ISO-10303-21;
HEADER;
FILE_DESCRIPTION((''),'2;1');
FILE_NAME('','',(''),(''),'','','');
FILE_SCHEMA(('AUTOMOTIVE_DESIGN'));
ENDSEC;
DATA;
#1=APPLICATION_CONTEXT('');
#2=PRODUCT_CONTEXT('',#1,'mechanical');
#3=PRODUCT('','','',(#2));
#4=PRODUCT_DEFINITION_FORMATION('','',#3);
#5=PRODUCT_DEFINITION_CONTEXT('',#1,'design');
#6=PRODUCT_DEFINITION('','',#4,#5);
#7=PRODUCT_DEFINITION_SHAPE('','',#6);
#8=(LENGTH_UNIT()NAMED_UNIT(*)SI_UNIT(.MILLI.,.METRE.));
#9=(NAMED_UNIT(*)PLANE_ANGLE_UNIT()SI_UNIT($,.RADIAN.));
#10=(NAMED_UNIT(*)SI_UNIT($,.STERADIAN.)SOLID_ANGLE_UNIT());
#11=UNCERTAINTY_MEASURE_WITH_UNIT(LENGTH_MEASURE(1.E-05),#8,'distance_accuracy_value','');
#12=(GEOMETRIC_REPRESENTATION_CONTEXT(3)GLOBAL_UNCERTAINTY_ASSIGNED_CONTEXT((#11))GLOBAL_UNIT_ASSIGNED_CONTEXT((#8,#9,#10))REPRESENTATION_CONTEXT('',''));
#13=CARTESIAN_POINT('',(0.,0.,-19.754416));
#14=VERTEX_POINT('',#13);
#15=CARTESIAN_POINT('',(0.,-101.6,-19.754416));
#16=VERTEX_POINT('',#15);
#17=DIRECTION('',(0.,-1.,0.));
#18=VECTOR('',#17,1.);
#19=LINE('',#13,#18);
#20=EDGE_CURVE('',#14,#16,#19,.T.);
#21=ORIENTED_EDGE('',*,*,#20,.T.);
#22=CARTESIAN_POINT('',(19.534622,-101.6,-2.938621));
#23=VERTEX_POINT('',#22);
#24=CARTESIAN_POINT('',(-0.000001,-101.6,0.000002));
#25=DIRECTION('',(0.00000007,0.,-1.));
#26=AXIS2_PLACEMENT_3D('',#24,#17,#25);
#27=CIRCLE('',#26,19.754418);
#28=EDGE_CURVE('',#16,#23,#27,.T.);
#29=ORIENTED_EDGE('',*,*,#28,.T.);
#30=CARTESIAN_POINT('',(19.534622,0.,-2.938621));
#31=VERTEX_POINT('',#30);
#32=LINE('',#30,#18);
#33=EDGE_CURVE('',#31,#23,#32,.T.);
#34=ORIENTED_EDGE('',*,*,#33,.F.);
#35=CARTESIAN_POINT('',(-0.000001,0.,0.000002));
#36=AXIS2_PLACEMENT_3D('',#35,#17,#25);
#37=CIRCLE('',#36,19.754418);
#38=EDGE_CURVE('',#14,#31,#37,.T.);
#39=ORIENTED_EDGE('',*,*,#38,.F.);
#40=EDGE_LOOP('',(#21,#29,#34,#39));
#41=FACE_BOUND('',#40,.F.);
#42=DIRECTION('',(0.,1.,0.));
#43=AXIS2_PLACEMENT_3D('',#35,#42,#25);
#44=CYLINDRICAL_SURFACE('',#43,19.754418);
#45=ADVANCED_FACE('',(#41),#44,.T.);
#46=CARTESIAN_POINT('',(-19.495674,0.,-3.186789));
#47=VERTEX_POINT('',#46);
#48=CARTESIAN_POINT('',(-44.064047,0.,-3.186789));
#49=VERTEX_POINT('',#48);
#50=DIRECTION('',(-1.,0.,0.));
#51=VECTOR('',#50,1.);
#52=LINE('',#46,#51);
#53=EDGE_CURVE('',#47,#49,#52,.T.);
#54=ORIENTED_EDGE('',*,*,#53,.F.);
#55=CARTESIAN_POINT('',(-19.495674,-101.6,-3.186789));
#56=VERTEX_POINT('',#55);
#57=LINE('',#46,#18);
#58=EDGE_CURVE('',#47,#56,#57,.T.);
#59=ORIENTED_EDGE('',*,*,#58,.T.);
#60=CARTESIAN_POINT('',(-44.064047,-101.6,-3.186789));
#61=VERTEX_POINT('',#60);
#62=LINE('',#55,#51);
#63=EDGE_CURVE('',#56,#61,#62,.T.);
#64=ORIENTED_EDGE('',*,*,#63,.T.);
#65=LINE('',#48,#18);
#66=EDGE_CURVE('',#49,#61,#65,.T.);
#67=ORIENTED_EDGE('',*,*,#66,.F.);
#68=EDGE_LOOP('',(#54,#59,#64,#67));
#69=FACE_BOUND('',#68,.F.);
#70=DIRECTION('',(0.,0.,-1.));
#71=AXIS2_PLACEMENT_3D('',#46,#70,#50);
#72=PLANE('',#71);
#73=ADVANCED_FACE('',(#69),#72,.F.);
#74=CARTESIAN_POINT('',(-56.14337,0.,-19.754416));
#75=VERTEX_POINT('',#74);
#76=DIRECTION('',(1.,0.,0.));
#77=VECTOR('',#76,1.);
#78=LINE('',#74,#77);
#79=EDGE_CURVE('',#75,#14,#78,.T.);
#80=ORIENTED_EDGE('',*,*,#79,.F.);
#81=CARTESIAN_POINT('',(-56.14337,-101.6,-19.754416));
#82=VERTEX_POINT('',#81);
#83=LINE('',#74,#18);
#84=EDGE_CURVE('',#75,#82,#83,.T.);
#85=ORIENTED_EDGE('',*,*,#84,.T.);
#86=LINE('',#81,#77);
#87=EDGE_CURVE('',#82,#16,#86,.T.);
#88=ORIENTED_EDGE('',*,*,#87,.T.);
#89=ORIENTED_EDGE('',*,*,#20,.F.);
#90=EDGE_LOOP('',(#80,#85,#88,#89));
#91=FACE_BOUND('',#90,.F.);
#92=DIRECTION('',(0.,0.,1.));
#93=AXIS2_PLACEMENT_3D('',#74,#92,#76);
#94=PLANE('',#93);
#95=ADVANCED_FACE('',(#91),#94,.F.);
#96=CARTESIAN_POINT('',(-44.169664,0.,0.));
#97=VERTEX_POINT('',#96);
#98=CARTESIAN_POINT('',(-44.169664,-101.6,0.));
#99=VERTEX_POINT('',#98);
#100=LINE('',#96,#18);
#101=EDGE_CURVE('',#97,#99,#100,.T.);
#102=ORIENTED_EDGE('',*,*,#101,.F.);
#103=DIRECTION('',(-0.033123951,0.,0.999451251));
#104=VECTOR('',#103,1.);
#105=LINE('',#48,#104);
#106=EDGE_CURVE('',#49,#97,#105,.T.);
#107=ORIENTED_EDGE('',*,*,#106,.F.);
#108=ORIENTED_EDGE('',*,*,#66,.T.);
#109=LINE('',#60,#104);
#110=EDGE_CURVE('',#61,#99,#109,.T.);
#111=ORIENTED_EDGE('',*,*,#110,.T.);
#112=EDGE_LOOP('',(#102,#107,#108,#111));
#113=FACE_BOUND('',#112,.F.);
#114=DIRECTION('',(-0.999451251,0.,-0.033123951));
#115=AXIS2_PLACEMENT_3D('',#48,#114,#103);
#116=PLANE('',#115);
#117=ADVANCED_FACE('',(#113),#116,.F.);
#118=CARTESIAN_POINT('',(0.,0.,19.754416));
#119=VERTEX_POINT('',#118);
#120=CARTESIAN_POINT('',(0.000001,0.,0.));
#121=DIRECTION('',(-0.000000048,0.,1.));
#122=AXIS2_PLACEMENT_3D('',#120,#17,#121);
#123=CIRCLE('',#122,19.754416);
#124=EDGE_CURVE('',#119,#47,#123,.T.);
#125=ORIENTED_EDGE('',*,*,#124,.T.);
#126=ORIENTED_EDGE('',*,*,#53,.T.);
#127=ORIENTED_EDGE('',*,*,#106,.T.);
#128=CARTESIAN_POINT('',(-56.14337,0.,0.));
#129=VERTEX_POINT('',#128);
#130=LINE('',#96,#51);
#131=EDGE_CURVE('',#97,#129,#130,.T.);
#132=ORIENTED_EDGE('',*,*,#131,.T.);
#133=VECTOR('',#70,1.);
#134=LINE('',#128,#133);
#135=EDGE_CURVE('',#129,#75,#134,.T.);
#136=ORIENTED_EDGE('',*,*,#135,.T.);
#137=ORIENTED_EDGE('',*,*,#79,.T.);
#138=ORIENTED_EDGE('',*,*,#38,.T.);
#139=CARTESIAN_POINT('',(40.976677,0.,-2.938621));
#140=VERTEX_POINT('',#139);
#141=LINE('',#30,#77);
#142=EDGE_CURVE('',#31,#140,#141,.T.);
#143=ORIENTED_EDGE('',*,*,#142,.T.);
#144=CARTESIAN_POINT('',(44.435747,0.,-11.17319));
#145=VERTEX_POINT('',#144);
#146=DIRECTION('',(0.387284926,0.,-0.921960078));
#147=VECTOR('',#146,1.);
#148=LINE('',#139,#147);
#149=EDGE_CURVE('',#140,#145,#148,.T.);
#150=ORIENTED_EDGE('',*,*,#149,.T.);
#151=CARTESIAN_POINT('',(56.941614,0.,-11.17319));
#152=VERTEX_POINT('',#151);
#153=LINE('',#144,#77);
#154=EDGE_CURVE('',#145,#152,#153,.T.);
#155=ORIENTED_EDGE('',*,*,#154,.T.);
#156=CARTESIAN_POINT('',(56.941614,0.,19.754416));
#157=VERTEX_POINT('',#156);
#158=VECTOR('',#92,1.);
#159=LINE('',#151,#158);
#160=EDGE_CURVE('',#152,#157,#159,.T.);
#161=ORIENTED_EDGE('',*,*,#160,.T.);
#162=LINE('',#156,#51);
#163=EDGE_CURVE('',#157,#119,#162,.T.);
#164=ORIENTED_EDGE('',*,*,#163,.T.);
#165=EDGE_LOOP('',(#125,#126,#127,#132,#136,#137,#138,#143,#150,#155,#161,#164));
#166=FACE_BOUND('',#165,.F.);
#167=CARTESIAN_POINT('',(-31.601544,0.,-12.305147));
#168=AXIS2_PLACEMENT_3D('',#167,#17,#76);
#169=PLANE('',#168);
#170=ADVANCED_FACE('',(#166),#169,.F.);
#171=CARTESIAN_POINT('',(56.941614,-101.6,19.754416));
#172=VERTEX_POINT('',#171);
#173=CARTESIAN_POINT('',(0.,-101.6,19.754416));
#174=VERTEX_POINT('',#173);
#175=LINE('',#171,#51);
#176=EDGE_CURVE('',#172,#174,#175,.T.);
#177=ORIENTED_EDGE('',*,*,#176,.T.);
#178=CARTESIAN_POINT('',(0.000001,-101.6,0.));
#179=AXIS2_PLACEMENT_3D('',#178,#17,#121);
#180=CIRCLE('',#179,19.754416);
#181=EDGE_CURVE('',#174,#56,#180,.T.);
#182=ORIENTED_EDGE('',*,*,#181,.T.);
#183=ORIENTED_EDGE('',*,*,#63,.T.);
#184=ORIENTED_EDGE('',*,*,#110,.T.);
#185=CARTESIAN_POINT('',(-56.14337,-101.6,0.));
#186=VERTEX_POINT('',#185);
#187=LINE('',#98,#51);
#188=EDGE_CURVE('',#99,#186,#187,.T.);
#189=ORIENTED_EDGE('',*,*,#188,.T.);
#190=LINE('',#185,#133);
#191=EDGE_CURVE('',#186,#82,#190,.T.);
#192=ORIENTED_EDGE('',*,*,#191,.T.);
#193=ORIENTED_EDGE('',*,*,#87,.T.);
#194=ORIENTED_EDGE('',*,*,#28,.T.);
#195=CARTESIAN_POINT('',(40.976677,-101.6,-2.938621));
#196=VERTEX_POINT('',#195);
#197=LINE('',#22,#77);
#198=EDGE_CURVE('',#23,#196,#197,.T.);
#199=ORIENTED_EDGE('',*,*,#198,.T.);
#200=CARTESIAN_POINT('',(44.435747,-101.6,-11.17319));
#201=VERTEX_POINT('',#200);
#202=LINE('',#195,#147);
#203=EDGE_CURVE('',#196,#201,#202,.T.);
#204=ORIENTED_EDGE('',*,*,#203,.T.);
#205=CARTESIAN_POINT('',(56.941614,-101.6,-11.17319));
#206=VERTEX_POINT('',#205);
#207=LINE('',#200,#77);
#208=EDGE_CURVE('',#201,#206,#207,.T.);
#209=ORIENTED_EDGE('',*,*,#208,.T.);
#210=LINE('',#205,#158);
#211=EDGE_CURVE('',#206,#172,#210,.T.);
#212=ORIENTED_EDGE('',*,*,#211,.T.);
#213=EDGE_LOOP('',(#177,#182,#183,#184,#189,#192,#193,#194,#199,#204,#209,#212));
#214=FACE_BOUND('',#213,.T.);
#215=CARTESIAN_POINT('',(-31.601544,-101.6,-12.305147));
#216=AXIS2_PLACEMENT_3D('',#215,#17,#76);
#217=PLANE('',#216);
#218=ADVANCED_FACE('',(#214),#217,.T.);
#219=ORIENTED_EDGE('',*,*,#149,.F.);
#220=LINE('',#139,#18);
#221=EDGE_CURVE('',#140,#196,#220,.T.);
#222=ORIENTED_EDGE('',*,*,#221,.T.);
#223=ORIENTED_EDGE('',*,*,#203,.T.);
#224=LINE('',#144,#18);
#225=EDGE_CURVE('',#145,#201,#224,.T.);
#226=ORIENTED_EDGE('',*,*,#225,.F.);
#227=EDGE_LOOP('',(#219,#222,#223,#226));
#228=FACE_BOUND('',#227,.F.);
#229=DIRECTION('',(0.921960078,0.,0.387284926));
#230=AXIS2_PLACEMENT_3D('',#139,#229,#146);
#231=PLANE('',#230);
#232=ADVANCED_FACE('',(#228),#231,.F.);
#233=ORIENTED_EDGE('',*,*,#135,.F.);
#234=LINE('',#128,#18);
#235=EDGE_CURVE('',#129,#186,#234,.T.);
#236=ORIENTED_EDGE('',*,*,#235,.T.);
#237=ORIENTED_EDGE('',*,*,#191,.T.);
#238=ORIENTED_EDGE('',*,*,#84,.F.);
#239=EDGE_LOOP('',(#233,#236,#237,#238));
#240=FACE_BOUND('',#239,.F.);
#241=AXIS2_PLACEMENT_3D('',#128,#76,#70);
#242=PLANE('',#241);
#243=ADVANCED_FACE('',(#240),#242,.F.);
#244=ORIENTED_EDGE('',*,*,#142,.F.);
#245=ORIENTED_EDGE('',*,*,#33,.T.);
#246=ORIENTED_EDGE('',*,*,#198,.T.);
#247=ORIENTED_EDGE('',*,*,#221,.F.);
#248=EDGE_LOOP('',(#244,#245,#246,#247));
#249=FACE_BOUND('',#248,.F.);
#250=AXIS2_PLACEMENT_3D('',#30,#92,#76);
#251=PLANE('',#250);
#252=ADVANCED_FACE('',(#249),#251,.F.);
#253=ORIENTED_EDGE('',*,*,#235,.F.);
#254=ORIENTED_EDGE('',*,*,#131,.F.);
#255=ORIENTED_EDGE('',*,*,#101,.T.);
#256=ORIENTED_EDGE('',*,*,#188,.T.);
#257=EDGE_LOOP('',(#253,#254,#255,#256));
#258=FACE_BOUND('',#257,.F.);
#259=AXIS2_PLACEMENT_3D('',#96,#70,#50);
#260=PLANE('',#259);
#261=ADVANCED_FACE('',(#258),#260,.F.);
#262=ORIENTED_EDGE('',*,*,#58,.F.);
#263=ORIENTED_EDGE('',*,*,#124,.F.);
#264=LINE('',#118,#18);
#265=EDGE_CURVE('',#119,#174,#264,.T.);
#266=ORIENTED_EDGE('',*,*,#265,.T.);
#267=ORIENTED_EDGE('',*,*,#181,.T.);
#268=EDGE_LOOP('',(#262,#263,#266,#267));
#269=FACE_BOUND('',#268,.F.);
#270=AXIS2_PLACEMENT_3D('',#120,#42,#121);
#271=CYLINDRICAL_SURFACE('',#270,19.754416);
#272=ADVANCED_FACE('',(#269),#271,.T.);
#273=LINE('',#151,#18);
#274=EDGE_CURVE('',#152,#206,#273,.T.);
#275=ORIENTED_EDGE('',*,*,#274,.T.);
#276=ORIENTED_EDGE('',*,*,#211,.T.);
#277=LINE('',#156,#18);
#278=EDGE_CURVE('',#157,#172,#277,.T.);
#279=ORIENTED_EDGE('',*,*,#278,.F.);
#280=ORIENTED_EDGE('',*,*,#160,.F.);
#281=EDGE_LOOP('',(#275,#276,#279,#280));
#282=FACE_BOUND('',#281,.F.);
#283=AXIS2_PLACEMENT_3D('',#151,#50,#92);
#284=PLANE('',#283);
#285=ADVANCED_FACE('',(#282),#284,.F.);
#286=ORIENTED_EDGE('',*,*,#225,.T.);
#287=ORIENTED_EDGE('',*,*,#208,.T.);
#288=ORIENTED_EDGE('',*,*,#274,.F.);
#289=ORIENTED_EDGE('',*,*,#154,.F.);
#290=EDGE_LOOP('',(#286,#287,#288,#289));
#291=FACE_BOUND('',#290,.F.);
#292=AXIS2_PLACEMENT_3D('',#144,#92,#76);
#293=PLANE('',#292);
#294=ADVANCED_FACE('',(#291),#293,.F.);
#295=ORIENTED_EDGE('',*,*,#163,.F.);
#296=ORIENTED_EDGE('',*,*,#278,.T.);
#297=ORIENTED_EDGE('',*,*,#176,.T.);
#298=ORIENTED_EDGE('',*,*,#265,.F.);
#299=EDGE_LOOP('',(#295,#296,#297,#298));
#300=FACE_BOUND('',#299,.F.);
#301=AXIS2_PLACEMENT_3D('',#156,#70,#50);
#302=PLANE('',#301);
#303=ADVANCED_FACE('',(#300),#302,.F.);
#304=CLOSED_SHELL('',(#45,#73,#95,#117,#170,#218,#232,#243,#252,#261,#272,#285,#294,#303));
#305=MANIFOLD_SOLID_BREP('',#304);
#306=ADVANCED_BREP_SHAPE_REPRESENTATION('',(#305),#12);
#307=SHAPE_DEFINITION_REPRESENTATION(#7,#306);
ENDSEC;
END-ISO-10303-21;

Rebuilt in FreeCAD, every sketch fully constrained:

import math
import FreeCAD as App
import Part
import Sketcher
from FreeCAD import Vector
Q = App.Units.Quantity

doc = App.newDocument("Part")
body = doc.addObject("PartDesign::Body", "Body")

# Sketch on XZ plane
sketch1 = body.newObject("Sketcher::SketchObject", "Sketch")
sketch1.AttachmentSupport = (doc.getObject("XZ_Plane"), [""])
sketch1.MapMode = "FlatFace"
sketch1.addGeometry(Part.LineSegment(Vector(-19.5, -3.2, 0), Vector(-44.1, -3.2, 0)), False)
sketch1.addGeometry(Part.LineSegment(Vector(-44.1, -3.2, 0), Vector(-44.2, 0, 0)), False)
sketch1.addGeometry(Part.LineSegment(Vector(-44.2, 0, 0), Vector(-56.1, 0, 0)), False)
sketch1.addGeometry(Part.LineSegment(Vector(-56.1, 0, 0), Vector(-56.1, -19.8, 0)), False)
sketch1.addGeometry(Part.LineSegment(Vector(-56.1, -19.8, 0), Vector(0, -19.8, 0)), False)
sketch1.addGeometry(Part.ArcOfCircle(Part.Circle(Vector(0, 0, 0), Vector(0, 0, 1), 19.8), math.radians(-90), math.radians(-9)), False)
sketch1.addGeometry(Part.LineSegment(Vector(19.5, -2.9, 0), Vector(41, -2.9, 0)), False)
sketch1.addGeometry(Part.LineSegment(Vector(41, -2.9, 0), Vector(44.4, -11.2, 0)), False)
sketch1.addGeometry(Part.LineSegment(Vector(44.4, -11.2, 0), Vector(56.9, -11.2, 0)), False)
sketch1.addGeometry(Part.LineSegment(Vector(56.9, -11.2, 0), Vector(56.9, 19.8, 0)), False)
sketch1.addGeometry(Part.LineSegment(Vector(56.9, 19.8, 0), Vector(0, 19.8, 0)), False)
sketch1.addGeometry(Part.ArcOfCircle(Part.Circle(Vector(0, 0, 0), Vector(0, 0, 1), 19.8), math.radians(90), math.radians(189)), False)
sketch1.addConstraint(Sketcher.Constraint("Coincident", 0, 2, 1, 1))
sketch1.addConstraint(Sketcher.Constraint("Coincident", 1, 2, 2, 1))
sketch1.addConstraint(Sketcher.Constraint("Coincident", 2, 2, 3, 1))
sketch1.addConstraint(Sketcher.Constraint("Coincident", 3, 2, 4, 1))
sketch1.addConstraint(Sketcher.Constraint("Tangent", 4, 2, 5, 1))
sketch1.addConstraint(Sketcher.Constraint("Coincident", 5, 2, 6, 1))
sketch1.addConstraint(Sketcher.Constraint("Coincident", 6, 2, 7, 1))
sketch1.addConstraint(Sketcher.Constraint("Coincident", 7, 2, 8, 1))
sketch1.addConstraint(Sketcher.Constraint("Coincident", 8, 2, 9, 1))
sketch1.addConstraint(Sketcher.Constraint("Coincident", 9, 2, 10, 1))
sketch1.addConstraint(Sketcher.Constraint("Tangent", 10, 2, 11, 1))
sketch1.addConstraint(Sketcher.Constraint("Coincident", 11, 2, 0, 1))
sketch1.addConstraint(Sketcher.Constraint("Horizontal", 0))
sketch1.addConstraint(Sketcher.Constraint("Horizontal", 2))
sketch1.addConstraint(Sketcher.Constraint("Vertical", 3))
sketch1.addConstraint(Sketcher.Constraint("Horizontal", 4))
sketch1.addConstraint(Sketcher.Constraint("Horizontal", 6))
sketch1.addConstraint(Sketcher.Constraint("Horizontal", 8))
sketch1.addConstraint(Sketcher.Constraint("Vertical", 9))
sketch1.addConstraint(Sketcher.Constraint("Horizontal", 10))
sketch1.addConstraint(Sketcher.Constraint("Coincident", 5, 3, -1, 1))
sketch1.addConstraint(Sketcher.Constraint("Coincident", 11, 3, -1, 1))
sketch1.addConstraint(Sketcher.Constraint("Equal", 5, 11))
sketch1.addConstraint(Sketcher.Constraint("PointOnObject", 1, 2, -1))
sketch1.addConstraint(Sketcher.Constraint("Radius", 5, Q("19.754418 mm")))
sketch1.addConstraint(Sketcher.Constraint("DistanceX", 4, 1, 4, 2, Q("56.14337 mm")))
sketch1.addConstraint(Sketcher.Constraint("Distance", 1, Q("3.188539 mm")))
sketch1.addConstraint(Sketcher.Constraint("Distance", 7, Q("8.93159 mm")))
sketch1.addConstraint(Sketcher.Constraint("DistanceX", 0, 2, 0, 1, Q("24.568373 mm")))
sketch1.addConstraint(Sketcher.Constraint("DistanceX", 2, 2, 2, 1, Q("11.973706 mm")))
sketch1.addConstraint(Sketcher.Constraint("DistanceX", 6, 1, 6, 2, Q("21.442055 mm")))
sketch1.addConstraint(Sketcher.Constraint("DistanceX", 8, 1, 8, 2, Q("12.505867 mm")))
sketch1.addConstraint(Sketcher.Constraint("DistanceX", 10, 2, 10, 1, Q("56.941614 mm")))
sketch1.addConstraint(Sketcher.Constraint("DistanceY", 9, 1, 9, 2, Q("30.927606 mm")))
pad1 = body.newObject("PartDesign::Pad", "Pad")
pad1.Profile = sketch1
pad1.Length = Q("4 in")

doc.recompute()
